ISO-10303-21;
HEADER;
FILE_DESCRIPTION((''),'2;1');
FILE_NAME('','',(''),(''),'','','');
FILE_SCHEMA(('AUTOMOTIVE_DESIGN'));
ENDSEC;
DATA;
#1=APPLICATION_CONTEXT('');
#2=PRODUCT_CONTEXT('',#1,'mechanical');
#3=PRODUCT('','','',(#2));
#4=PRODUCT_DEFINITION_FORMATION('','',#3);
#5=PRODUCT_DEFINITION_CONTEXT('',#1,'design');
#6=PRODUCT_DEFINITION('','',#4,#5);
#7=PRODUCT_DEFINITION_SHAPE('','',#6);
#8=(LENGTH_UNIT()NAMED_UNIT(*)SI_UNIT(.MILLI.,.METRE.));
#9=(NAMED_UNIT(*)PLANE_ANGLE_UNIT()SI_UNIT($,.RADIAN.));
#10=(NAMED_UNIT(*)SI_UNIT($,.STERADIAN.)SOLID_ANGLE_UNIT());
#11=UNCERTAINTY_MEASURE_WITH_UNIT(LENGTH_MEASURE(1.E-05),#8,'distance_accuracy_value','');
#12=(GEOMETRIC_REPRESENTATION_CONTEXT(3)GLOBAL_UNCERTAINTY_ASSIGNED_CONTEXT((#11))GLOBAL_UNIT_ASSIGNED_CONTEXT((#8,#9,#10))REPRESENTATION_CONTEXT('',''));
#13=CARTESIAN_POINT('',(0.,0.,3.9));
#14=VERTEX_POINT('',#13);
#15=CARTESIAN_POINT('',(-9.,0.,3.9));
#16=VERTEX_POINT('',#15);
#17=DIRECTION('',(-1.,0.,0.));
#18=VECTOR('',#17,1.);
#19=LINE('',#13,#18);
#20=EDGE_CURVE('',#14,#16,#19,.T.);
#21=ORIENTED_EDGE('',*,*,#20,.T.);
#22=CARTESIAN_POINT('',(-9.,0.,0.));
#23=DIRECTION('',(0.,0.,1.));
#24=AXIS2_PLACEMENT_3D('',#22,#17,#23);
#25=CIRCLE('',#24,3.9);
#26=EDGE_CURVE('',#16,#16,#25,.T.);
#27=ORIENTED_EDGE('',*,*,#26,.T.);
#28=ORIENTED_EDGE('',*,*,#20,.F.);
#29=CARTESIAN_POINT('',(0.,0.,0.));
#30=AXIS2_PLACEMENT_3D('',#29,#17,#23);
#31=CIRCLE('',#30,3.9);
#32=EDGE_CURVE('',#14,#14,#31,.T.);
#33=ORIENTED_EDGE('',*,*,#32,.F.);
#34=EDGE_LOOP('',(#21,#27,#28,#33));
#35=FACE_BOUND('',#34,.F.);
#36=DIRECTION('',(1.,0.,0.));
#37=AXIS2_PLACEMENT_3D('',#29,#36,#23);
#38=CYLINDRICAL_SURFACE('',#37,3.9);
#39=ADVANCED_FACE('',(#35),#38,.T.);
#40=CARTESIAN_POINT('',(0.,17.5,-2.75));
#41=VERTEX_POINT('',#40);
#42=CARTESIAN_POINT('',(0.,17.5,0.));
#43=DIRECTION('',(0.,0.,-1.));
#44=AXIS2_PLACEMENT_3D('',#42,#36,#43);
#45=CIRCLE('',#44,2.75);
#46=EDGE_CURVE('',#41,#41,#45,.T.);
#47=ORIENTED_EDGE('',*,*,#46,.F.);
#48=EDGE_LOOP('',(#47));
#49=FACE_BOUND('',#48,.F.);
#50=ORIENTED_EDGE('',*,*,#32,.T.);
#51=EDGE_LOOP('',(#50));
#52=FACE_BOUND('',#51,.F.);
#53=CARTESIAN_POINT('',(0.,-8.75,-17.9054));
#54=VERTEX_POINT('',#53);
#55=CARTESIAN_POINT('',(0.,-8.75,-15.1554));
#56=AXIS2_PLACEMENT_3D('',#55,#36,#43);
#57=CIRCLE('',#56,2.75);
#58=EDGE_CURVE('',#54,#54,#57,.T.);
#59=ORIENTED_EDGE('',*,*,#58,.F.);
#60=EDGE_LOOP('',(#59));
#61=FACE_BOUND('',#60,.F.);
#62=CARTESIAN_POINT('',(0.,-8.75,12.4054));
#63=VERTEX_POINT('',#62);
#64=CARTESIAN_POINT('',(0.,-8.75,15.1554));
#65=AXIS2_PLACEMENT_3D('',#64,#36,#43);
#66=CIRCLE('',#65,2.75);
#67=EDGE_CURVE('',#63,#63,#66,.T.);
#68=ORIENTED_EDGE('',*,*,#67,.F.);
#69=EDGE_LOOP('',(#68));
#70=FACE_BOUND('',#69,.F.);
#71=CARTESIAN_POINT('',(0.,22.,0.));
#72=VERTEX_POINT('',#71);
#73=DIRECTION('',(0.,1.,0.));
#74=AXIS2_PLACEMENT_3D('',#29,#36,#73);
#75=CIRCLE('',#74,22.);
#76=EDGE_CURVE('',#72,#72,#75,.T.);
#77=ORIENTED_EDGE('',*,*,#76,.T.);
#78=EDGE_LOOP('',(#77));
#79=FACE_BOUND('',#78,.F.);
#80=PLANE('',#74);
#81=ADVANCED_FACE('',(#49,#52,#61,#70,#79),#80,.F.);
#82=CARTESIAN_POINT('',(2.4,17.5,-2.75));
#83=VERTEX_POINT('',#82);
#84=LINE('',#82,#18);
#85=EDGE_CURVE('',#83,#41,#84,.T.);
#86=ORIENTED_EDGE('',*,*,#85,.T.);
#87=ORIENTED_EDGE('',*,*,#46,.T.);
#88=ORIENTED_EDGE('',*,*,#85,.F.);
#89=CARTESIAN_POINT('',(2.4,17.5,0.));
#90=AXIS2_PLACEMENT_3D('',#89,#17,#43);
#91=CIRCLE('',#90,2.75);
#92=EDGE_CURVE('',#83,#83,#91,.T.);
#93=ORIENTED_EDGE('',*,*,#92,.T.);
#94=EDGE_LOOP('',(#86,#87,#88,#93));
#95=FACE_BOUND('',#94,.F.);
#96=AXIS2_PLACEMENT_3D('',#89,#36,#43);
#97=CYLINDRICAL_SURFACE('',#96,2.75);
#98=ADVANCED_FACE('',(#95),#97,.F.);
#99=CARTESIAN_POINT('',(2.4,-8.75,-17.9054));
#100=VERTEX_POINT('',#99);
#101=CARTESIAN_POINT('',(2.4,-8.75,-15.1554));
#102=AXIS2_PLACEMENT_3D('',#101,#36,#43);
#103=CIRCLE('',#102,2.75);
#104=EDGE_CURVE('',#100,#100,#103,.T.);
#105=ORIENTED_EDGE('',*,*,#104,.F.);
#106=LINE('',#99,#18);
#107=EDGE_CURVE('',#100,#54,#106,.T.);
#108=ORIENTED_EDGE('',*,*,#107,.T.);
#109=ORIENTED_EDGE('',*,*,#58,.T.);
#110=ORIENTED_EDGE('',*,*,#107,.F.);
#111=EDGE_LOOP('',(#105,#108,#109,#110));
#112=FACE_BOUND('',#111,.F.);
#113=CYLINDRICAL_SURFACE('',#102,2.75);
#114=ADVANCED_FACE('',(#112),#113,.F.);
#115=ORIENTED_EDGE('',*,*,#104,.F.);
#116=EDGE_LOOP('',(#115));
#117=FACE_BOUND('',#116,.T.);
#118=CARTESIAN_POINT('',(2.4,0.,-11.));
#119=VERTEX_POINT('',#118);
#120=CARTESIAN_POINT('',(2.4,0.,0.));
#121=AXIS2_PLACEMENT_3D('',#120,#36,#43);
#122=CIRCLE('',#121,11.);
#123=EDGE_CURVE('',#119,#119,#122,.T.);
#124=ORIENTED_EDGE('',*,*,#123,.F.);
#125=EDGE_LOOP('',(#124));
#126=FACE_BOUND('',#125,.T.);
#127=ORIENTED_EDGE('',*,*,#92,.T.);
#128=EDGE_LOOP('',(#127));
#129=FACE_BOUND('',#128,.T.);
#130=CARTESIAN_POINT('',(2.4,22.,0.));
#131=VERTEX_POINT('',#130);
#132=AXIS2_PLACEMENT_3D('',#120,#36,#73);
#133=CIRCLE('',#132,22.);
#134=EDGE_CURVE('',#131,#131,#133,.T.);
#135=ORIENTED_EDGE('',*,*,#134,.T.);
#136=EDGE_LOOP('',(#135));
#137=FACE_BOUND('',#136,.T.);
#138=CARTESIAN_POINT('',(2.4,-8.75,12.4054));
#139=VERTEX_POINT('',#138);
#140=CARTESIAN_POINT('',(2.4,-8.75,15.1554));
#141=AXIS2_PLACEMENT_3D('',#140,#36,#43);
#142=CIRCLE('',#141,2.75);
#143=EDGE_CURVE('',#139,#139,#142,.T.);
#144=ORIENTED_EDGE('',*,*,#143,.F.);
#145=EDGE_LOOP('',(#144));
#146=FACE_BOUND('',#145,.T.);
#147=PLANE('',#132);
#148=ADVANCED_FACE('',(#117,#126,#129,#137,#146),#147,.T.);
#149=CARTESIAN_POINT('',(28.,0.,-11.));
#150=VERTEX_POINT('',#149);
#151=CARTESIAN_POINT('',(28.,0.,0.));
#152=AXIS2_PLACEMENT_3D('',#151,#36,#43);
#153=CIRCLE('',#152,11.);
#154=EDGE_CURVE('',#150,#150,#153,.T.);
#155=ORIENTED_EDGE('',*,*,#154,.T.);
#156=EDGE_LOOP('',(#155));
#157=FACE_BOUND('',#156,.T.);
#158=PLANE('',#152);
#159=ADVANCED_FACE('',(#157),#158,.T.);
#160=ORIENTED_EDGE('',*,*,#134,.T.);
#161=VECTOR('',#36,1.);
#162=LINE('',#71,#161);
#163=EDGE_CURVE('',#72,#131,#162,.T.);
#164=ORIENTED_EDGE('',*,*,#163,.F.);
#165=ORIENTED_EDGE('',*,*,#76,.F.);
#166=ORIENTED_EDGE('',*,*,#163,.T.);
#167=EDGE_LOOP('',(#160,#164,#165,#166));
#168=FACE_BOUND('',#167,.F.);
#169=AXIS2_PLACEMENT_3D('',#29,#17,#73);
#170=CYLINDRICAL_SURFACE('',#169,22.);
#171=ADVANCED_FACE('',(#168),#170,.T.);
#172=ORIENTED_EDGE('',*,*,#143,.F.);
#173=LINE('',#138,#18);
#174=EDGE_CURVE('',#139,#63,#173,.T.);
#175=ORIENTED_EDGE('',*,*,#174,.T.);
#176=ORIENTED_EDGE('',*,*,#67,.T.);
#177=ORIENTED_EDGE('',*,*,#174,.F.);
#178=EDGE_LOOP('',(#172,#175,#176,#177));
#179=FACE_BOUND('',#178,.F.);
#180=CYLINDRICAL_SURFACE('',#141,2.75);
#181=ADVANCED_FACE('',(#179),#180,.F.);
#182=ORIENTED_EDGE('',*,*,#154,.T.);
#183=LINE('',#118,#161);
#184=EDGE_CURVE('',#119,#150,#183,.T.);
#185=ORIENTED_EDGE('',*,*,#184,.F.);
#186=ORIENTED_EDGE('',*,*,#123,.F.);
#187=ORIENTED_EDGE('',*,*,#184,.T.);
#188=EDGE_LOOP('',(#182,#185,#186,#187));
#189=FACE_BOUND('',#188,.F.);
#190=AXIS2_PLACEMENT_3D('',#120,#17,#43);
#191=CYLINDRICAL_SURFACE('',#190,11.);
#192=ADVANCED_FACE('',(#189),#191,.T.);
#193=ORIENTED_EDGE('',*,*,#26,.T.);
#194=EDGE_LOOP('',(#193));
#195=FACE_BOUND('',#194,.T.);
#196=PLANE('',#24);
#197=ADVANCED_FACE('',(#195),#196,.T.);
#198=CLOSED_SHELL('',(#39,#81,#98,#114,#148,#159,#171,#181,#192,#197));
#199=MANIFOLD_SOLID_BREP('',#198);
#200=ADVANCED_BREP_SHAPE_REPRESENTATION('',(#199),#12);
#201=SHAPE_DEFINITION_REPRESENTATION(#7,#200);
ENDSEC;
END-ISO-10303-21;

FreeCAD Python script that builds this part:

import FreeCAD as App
import Part
import Sketcher
from FreeCAD import Vector
Q = App.Units.Quantity

doc = App.newDocument("Part")
body = doc.addObject("PartDesign::Body", "Body")

sketch1 = body.newObject("Sketcher::SketchObject", "Sketch")
sketch1.AttachmentSupport = (doc.getObject("YZ_Plane"), [""])
sketch1.MapMode = "FlatFace"
sketch1.addGeometry(Part.Circle(Vector(0, 0, 0), Vector(0, 0, 1), 22), False)
sketch1.addConstraint([
    Sketcher.Constraint("Coincident", 0, 3, -1, 1),
    Sketcher.Constraint("Diameter", 0, Q("44 mm")),
])
pad1 = body.newObject("PartDesign::Pad", "Pad")
pad1.Profile = sketch1
pad1.Length = 2.4

sketch2 = body.newObject("Sketcher::SketchObject", "Sketch001")
sketch2.AttachmentSupport = (doc.getObject("YZ_Plane"), [""])
sketch2.MapMode = "FlatFace"
sketch2.AttachmentOffset = App.Placement(Vector(0, 0, 2.4), App.Rotation())
sketch2.addGeometry([
    Part.Circle(Vector(17.5, 0, 0), Vector(0, 0, 1), 2.75),
    Part.Circle(Vector(-8.75, 15.1554, 0), Vector(0, 0, 1), 2.75),
    Part.Circle(Vector(-8.75, -15.1554, 0), Vector(0, 0, 1), 2.75),
], False)
sketch2.addConstraint([
    Sketcher.Constraint("Equal", 0, 1),
    Sketcher.Constraint("Equal", 1, 2),
    Sketcher.Constraint("Symmetric", 1, 3, 2, 3, -1),
    Sketcher.Constraint("PointOnObject", 0, 3, -1),
    Sketcher.Constraint("Diameter", 0, Q("5.5 mm")),
    Sketcher.Constraint("DistanceX", -1, 1, 0, 3, Q("17.5 mm")),
    Sketcher.Constraint("DistanceX", 1, 3, -1, 1, Q("8.75 mm")),
    Sketcher.Constraint("DistanceY", -1, 1, 1, 3, Q("15.1554 mm")),
])
pocket1 = body.newObject("PartDesign::Pocket", "Pocket")
pocket1.Profile = sketch2
pocket1.Length = 2.4

sketch3 = body.newObject("Sketcher::SketchObject", "Sketch002")
sketch3.AttachmentSupport = (doc.getObject("YZ_Plane"), [""])
sketch3.MapMode = "FlatFace"
sketch3.AttachmentOffset = App.Placement(Vector(0, 0, 2.4), App.Rotation())
sketch3.addGeometry(Part.Circle(Vector(0, 0, 0), Vector(0, 0, 1), 11), False)
sketch3.addConstraint([
    Sketcher.Constraint("Coincident", 0, 3, -1, 1),
    Sketcher.Constraint("Diameter", 0, Q("22 mm")),
])
pad2 = body.newObject("PartDesign::Pad", "Pad001")
pad2.Profile = sketch3
pad2.Length = 25.6

sketch4 = body.newObject("Sketcher::SketchObject", "Sketch003")
sketch4.AttachmentSupport = (doc.getObject("YZ_Plane"), [""])
sketch4.MapMode = "FlatFace"
sketch4.addGeometry(Part.Circle(Vector(0, 0, 0), Vector(0, 0, 1), 3.9), False)
sketch4.addConstraint([
    Sketcher.Constraint("Coincident", 0, 3, -1, 1),
    Sketcher.Constraint("Diameter", 0, Q("7.8 mm")),
])
pad3 = body.newObject("PartDesign::Pad", "Pad002")
pad3.Profile = sketch4
pad3.Length = 9
pad3.Reversed = True

doc.recompute()
